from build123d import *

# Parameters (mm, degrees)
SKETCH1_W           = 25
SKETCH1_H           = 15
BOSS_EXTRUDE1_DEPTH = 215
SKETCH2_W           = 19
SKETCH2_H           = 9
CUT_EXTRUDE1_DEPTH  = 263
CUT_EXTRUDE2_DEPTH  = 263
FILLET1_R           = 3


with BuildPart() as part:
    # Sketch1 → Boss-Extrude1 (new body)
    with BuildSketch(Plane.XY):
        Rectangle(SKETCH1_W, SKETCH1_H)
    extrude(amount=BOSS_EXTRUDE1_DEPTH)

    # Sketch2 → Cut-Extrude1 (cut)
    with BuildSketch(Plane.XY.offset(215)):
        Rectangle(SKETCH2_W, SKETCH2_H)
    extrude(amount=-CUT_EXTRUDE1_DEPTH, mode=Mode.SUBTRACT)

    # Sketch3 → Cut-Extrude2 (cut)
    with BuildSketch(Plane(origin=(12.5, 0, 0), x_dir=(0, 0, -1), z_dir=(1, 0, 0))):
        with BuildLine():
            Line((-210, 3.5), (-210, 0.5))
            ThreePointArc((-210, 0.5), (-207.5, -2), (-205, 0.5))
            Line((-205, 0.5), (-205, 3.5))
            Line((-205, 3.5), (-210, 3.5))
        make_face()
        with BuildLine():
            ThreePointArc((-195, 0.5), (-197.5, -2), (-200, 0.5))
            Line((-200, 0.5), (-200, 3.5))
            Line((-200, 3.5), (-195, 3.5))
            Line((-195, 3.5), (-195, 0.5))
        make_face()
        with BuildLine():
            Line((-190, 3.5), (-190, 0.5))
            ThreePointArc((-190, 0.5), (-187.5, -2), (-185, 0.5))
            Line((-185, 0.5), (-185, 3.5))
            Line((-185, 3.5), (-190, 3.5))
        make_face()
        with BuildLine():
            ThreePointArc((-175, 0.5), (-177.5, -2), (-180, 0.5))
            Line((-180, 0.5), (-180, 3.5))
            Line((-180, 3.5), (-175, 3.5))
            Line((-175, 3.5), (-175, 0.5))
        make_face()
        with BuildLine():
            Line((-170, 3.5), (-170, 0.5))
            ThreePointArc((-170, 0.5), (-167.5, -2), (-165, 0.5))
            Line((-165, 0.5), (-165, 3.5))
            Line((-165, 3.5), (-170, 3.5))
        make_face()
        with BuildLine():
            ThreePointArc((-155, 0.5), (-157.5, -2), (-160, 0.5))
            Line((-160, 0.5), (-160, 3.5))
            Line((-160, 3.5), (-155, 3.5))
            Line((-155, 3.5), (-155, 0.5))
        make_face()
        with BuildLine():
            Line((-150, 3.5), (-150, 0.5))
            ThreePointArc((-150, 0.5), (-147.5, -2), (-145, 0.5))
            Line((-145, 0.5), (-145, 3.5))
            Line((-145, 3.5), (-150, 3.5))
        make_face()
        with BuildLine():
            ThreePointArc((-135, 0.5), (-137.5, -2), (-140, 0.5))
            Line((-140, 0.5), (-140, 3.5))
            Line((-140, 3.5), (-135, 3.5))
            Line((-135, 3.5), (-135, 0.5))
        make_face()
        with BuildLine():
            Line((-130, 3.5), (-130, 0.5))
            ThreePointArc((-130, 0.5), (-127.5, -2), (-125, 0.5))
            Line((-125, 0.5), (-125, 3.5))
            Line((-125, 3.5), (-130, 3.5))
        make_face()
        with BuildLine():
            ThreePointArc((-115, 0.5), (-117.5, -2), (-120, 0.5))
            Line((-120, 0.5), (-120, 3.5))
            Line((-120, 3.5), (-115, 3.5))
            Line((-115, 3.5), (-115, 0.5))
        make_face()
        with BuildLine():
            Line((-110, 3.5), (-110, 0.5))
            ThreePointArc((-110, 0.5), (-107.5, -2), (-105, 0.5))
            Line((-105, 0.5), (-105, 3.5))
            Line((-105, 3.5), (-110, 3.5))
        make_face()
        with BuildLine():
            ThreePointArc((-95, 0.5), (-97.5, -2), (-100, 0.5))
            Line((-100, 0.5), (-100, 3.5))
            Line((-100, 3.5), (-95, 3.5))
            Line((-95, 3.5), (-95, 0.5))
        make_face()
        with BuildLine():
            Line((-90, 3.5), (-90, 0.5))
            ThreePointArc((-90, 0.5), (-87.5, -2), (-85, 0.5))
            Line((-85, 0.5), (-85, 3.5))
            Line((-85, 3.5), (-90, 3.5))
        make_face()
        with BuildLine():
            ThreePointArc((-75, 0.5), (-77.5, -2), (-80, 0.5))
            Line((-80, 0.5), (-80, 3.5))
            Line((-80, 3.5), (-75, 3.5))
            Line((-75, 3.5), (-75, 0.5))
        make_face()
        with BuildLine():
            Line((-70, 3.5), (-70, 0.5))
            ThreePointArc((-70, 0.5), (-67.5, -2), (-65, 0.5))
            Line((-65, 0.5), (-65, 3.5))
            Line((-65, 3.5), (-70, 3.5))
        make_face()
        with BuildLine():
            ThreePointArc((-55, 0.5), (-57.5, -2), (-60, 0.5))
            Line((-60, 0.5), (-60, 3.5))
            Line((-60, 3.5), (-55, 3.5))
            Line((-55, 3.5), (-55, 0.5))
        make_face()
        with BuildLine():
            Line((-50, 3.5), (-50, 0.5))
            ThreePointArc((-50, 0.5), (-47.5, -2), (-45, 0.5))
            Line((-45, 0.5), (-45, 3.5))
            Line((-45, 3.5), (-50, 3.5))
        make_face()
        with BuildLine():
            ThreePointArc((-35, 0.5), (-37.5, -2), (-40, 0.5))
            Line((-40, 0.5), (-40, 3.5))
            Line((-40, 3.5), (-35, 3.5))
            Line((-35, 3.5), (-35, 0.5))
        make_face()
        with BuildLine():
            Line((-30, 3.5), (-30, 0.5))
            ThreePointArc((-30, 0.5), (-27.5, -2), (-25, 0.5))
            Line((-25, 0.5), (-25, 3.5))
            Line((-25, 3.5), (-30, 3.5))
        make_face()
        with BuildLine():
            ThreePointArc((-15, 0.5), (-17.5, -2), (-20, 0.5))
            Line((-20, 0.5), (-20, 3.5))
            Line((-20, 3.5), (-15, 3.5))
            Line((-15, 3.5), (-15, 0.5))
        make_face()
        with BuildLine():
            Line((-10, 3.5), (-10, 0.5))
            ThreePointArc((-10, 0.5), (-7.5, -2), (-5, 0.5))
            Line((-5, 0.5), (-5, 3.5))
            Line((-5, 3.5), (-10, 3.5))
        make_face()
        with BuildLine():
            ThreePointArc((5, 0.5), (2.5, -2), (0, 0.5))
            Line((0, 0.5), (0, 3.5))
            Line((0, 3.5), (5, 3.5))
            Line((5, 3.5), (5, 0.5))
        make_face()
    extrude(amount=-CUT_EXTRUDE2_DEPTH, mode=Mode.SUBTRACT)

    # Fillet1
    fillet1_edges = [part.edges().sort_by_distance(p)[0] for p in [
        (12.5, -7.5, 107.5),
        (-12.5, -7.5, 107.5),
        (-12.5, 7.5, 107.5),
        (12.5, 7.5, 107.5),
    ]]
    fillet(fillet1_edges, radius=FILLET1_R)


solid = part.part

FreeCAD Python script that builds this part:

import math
import FreeCAD as App
import Part
import Sketcher

V = App.Vector


def edges_at(feature, points):
    """Names of the edges that pass closest to the given points."""
    edges = feature.Shape.Edges
    near = lambda p: min(range(len(edges)), key=lambda i: edges[i].distToShape(Part.Vertex(*p))[0])
    return sorted({f"Edge{near(p) + 1}" for p in points})

doc = App.newDocument("Part")
body = doc.addObject("PartDesign::Body", "Body")

# Sketch on XY plane
sketch1 = body.newObject("Sketcher::SketchObject", "Sketch")
sketch1.AttachmentSupport = (doc.getObject("XY_Plane"), [""])
sketch1.MapMode = "FlatFace"
sketch1.addGeometry([
    Part.LineSegment(V(-12.5, 7.5, 0), V(-12.5, -7.5, 0)),
    Part.LineSegment(V(-12.5, -7.5, 0), V(12.5, -7.5, 0)),
    Part.LineSegment(V(12.5, -7.5, 0), V(12.5, 7.5, 0)),
    Part.LineSegment(V(12.5, 7.5, 0), V(-12.5, 7.5, 0)),
], False)
sketch1.addConstraint([
    Sketcher.Constraint("Coincident", 0, 2, 1, 1),
    Sketcher.Constraint("Coincident", 1, 2, 2, 1),
    Sketcher.Constraint("Coincident", 2, 2, 3, 1),
    Sketcher.Constraint("Coincident", 3, 2, 0, 1),
    Sketcher.Constraint("Vertical", 0),
    Sketcher.Constraint("Horizontal", 1),
    Sketcher.Constraint("Vertical", 2),
    Sketcher.Constraint("Horizontal", 3),
    Sketcher.Constraint("Symmetric", 0, 2, 2, 2, -1, 1),
    Sketcher.Constraint("DistanceX", 1, 1, 1, 2, 25.0),
    Sketcher.Constraint("DistanceY", 0, 2, 0, 1, 15.0),
])
pad1 = body.newObject("PartDesign::Pad", "Pad")
pad1.Profile = sketch1
pad1.Length = 215

# Sketch on XY plane
sketch2 = body.newObject("Sketcher::SketchObject", "Sketch001")
sketch2.AttachmentSupport = (doc.getObject("XY_Plane"), [""])
sketch2.MapMode = "FlatFace"
sketch2.AttachmentOffset = App.Placement(V(0, 0, 215), App.Rotation())
sketch2.addGeometry([
    Part.LineSegment(V(-9.5, 4.5, 0), V(-9.5, -4.5, 0)),
    Part.LineSegment(V(-9.5, -4.5, 0), V(9.5, -4.5, 0)),
    Part.LineSegment(V(9.5, -4.5, 0), V(9.5, 4.5, 0)),
    Part.LineSegment(V(9.5, 4.5, 0), V(-9.5, 4.5, 0)),
], False)
sketch2.addConstraint([
    Sketcher.Constraint("Coincident", 0, 2, 1, 1),
    Sketcher.Constraint("Coincident", 1, 2, 2, 1),
    Sketcher.Constraint("Coincident", 2, 2, 3, 1),
    Sketcher.Constraint("Coincident", 3, 2, 0, 1),
    Sketcher.Constraint("Vertical", 0),
    Sketcher.Constraint("Horizontal", 1),
    Sketcher.Constraint("Vertical", 2),
    Sketcher.Constraint("Horizontal", 3),
    Sketcher.Constraint("Symmetric", 0, 2, 2, 2, -1, 1),
    Sketcher.Constraint("DistanceX", 1, 1, 1, 2, 19.0),
    Sketcher.Constraint("DistanceY", 0, 2, 0, 1, 9.0),
])
pocket1 = body.newObject("PartDesign::Pocket", "Pocket")
pocket1.Profile = sketch2
pocket1.Length = 263

# Sketch on YZ plane
sketch3 = body.newObject("Sketcher::SketchObject", "Sketch002")
sketch3.AttachmentSupport = (doc.getObject("YZ_Plane"), [""])
sketch3.MapMode = "FlatFace"
sketch3.AttachmentOffset = App.Placement(V(0, 0, 12.5), App.Rotation())
sketch3.addGeometry([
    Part.LineSegment(V(3.5, 210, 0), V(0.5, 210, 0)),  # 0
    Part.ArcOfCircle(Part.Circle(V(0.5, 207.5, 0), V(0, 0, 1), 2.5), math.radians(90), math.radians(270)),  # 1
    Part.LineSegment(V(0.5, 205, 0), V(3.5, 205, 0)),  # 2
    Part.LineSegment(V(3.5, 205, 0), V(3.5, 210, 0)),  # 3
    Part.ArcOfCircle(Part.Circle(V(0.5, 197.5, 0), V(0, 0, 1), 2.5), math.radians(90), math.radians(270)),  # 4
    Part.LineSegment(V(0.5, 195, 0), V(3.5, 195, 0)),  # 5
    Part.LineSegment(V(3.5, 195, 0), V(3.5, 200, 0)),  # 6
    Part.LineSegment(V(3.5, 200, 0), V(0.5, 200, 0)),  # 7
    Part.LineSegment(V(3.5, 190, 0), V(0.5, 190, 0)),  # 8
    Part.ArcOfCircle(Part.Circle(V(0.5, 187.5, 0), V(0, 0, 1), 2.5), math.radians(90), math.radians(270)),  # 9
    Part.LineSegment(V(0.5, 185, 0), V(3.5, 185, 0)),  # 10
    Part.LineSegment(V(3.5, 185, 0), V(3.5, 190, 0)),  # 11
    Part.ArcOfCircle(Part.Circle(V(0.5, 177.5, 0), V(0, 0, 1), 2.5), math.radians(90), math.radians(270)),  # 12
    Part.LineSegment(V(0.5, 175, 0), V(3.5, 175, 0)),  # 13
    Part.LineSegment(V(3.5, 175, 0), V(3.5, 180, 0)),  # 14
    Part.LineSegment(V(3.5, 180, 0), V(0.5, 180, 0)),  # 15
    Part.LineSegment(V(3.5, 170, 0), V(0.5, 170, 0)),  # 16
    Part.ArcOfCircle(Part.Circle(V(0.5, 167.5, 0), V(0, 0, 1), 2.5), math.radians(90), math.radians(270)),  # 17
    Part.LineSegment(V(0.5, 165, 0), V(3.5, 165, 0)),  # 18
    Part.LineSegment(V(3.5, 165, 0), V(3.5, 170, 0)),  # 19
    Part.ArcOfCircle(Part.Circle(V(0.5, 157.5, 0), V(0, 0, 1), 2.5), math.radians(90), math.radians(270)),  # 20
    Part.LineSegment(V(0.5, 155, 0), V(3.5, 155, 0)),  # 21
    Part.LineSegment(V(3.5, 155, 0), V(3.5, 160, 0)),  # 22
    Part.LineSegment(V(3.5, 160, 0), V(0.5, 160, 0)),  # 23
    Part.LineSegment(V(3.5, 150, 0), V(0.5, 150, 0)),  # 24
    Part.ArcOfCircle(Part.Circle(V(0.5, 147.5, 0), V(0, 0, 1), 2.5), math.radians(90), math.radians(270)),  # 25
    Part.LineSegment(V(0.5, 145, 0), V(3.5, 145, 0)),  # 26
    Part.LineSegment(V(3.5, 145, 0), V(3.5, 150, 0)),  # 27
    Part.ArcOfCircle(Part.Circle(V(0.5, 137.5, 0), V(0, 0, 1), 2.5), math.radians(90), math.radians(270)),  # 28
    Part.LineSegment(V(0.5, 135, 0), V(3.5, 135, 0)),  # 29
    Part.LineSegment(V(3.5, 135, 0), V(3.5, 140, 0)),  # 30
    Part.LineSegment(V(3.5, 140, 0), V(0.5, 140, 0)),  # 31
    Part.LineSegment(V(3.5, 130, 0), V(0.5, 130, 0)),  # 32
    Part.ArcOfCircle(Part.Circle(V(0.5, 127.5, 0), V(0, 0, 1), 2.5), math.radians(90), math.radians(270)),  # 33
    Part.LineSegment(V(0.5, 125, 0), V(3.5, 125, 0)),  # 34
    Part.LineSegment(V(3.5, 125, 0), V(3.5, 130, 0)),  # 35
    Part.ArcOfCircle(Part.Circle(V(0.5, 117.5, 0), V(0, 0, 1), 2.5), math.radians(90), math.radians(270)),  # 36
    Part.LineSegment(V(0.5, 115, 0), V(3.5, 115, 0)),  # 37
    Part.LineSegment(V(3.5, 115, 0), V(3.5, 120, 0)),  # 38
    Part.LineSegment(V(3.5, 120, 0), V(0.5, 120, 0)),  # 39
    Part.LineSegment(V(3.5, 110, 0), V(0.5, 110, 0)),  # 40
    Part.ArcOfCircle(Part.Circle(V(0.5, 107.5, 0), V(0, 0, 1), 2.5), math.radians(90), math.radians(270)),  # 41
    Part.LineSegment(V(0.5, 105, 0), V(3.5, 105, 0)),  # 42
    Part.LineSegment(V(3.5, 105, 0), V(3.5, 110, 0)),  # 43
    Part.ArcOfCircle(Part.Circle(V(0.5, 97.5, 0), V(0, 0, 1), 2.5), math.radians(90), math.radians(270)),  # 44
    Part.LineSegment(V(0.5, 95, 0), V(3.5, 95, 0)),  # 45
    Part.LineSegment(V(3.5, 95, 0), V(3.5, 100, 0)),  # 46
    Part.LineSegment(V(3.5, 100, 0), V(0.5, 100, 0)),  # 47
    Part.LineSegment(V(3.5, 90, 0), V(0.5, 90, 0)),  # 48
    Part.ArcOfCircle(Part.Circle(V(0.5, 87.5, 0), V(0, 0, 1), 2.5), math.radians(90), math.radians(270)),  # 49
    Part.LineSegment(V(0.5, 85, 0), V(3.5, 85, 0)),  # 50
    Part.LineSegment(V(3.5, 85, 0), V(3.5, 90, 0)),  # 51
    Part.ArcOfCircle(Part.Circle(V(0.5, 77.5, 0), V(0, 0, 1), 2.5), math.radians(90), math.radians(270)),  # 52
    Part.LineSegment(V(0.5, 75, 0), V(3.5, 75, 0)),  # 53
    Part.LineSegment(V(3.5, 75, 0), V(3.5, 80, 0)),  # 54
    Part.LineSegment(V(3.5, 80, 0), V(0.5, 80, 0)),  # 55
    Part.LineSegment(V(3.5, 70, 0), V(0.5, 70, 0)),  # 56
    Part.ArcOfCircle(Part.Circle(V(0.5, 67.5, 0), V(0, 0, 1), 2.5), math.radians(90), math.radians(270)),  # 57
    Part.LineSegment(V(0.5, 65, 0), V(3.5, 65, 0)),  # 58
    Part.LineSegment(V(3.5, 65, 0), V(3.5, 70, 0)),  # 59
    Part.ArcOfCircle(Part.Circle(V(0.5, 57.5, 0), V(0, 0, 1), 2.5), math.radians(90), math.radians(270)),  # 60
    Part.LineSegment(V(0.5, 55, 0), V(3.5, 55, 0)),  # 61
    Part.LineSegment(V(3.5, 55, 0), V(3.5, 60, 0)),  # 62
    Part.LineSegment(V(3.5, 60, 0), V(0.5, 60, 0)),  # 63
    Part.LineSegment(V(3.5, 50, 0), V(0.5, 50, 0)),  # 64
    Part.ArcOfCircle(Part.Circle(V(0.5, 47.5, 0), V(0, 0, 1), 2.5), math.radians(90), math.radians(270)),  # 65
    Part.LineSegment(V(0.5, 45, 0), V(3.5, 45, 0)),  # 66
    Part.LineSegment(V(3.5, 45, 0), V(3.5, 50, 0)),  # 67
    Part.ArcOfCircle(Part.Circle(V(0.5, 37.5, 0), V(0, 0, 1), 2.5), math.radians(90), math.radians(270)),  # 68
    Part.LineSegment(V(0.5, 35, 0), V(3.5, 35, 0)),  # 69
    Part.LineSegment(V(3.5, 35, 0), V(3.5, 40, 0)),  # 70
    Part.LineSegment(V(3.5, 40, 0), V(0.5, 40, 0)),  # 71
    Part.LineSegment(V(3.5, 30, 0), V(0.5, 30, 0)),  # 72
    Part.ArcOfCircle(Part.Circle(V(0.5, 27.5, 0), V(0, 0, 1), 2.5), math.radians(90), math.radians(270)),  # 73
    Part.LineSegment(V(0.5, 25, 0), V(3.5, 25, 0)),  # 74
    Part.LineSegment(V(3.5, 25, 0), V(3.5, 30, 0)),  # 75
    Part.ArcOfCircle(Part.Circle(V(0.5, 17.5, 0), V(0, 0, 1), 2.5), math.radians(90), math.radians(270)),  # 76
    Part.LineSegment(V(0.5, 15, 0), V(3.5, 15, 0)),  # 77
    Part.LineSegment(V(3.5, 15, 0), V(3.5, 20, 0)),  # 78
    Part.LineSegment(V(3.5, 20, 0), V(0.5, 20, 0)),  # 79
    Part.LineSegment(V(3.5, 10, 0), V(0.5, 10, 0)),  # 80
    Part.ArcOfCircle(Part.Circle(V(0.5, 7.5, 0), V(0, 0, 1), 2.5), math.radians(90), math.radians(270)),  # 81
    Part.LineSegment(V(0.5, 5, 0), V(3.5, 5, 0)),  # 82
    Part.LineSegment(V(3.5, 5, 0), V(3.5, 10, 0)),  # 83
    Part.ArcOfCircle(Part.Circle(V(0.5, -2.5, 0), V(0, 0, 1), 2.5), math.radians(90), math.radians(270)),  # 84
    Part.LineSegment(V(0.5, -5, 0), V(3.5, -5, 0)),  # 85
    Part.LineSegment(V(3.5, -5, 0), V(3.5, 0, 0)),  # 86
    Part.LineSegment(V(3.5, 0, 0), V(0.5, 0, 0)),  # 87
], False)
sketch3.addConstraint([
    Sketcher.Constraint("Tangent", 0, 2, 1, 1),
    Sketcher.Constraint("Tangent", 1, 2, 2, 1),
    Sketcher.Constraint("Coincident", 2, 2, 3, 1),
    Sketcher.Constraint("Coincident", 3, 2, 0, 1),
    Sketcher.Constraint("Tangent", 4, 2, 5, 1),
    Sketcher.Constraint("Coincident", 5, 2, 6, 1),
    Sketcher.Constraint("Coincident", 6, 2, 7, 1),
    Sketcher.Constraint("Tangent", 7, 2, 4, 1),
    Sketcher.Constraint("Tangent", 8, 2, 9, 1),
    Sketcher.Constraint("Tangent", 9, 2, 10, 1),
    Sketcher.Constraint("Coincident", 10, 2, 11, 1),
    Sketcher.Constraint("Coincident", 11, 2, 8, 1),
    Sketcher.Constraint("Tangent", 12, 2, 13, 1),
    Sketcher.Constraint("Coincident", 13, 2, 14, 1),
    Sketcher.Constraint("Coincident", 14, 2, 15, 1),
    Sketcher.Constraint("Tangent", 15, 2, 12, 1),
    Sketcher.Constraint("Tangent", 16, 2, 17, 1),
    Sketcher.Constraint("Tangent", 17, 2, 18, 1),
    Sketcher.Constraint("Coincident", 18, 2, 19, 1),
    Sketcher.Constraint("Coincident", 19, 2, 16, 1),
    Sketcher.Constraint("Tangent", 20, 2, 21, 1),
    Sketcher.Constraint("Coincident", 21, 2, 22, 1),
    Sketcher.Constraint("Coincident", 22, 2, 23, 1),
    Sketcher.Constraint("Tangent", 23, 2, 20, 1),
    Sketcher.Constraint("Tangent", 24, 2, 25, 1),
    Sketcher.Constraint("Tangent", 25, 2, 26, 1),
    Sketcher.Constraint("Coincident", 26, 2, 27, 1),
    Sketcher.Constraint("Coincident", 27, 2, 24, 1),
    Sketcher.Constraint("Tangent", 28, 2, 29, 1),
    Sketcher.Constraint("Coincident", 29, 2, 30, 1),
    Sketcher.Constraint("Coincident", 30, 2, 31, 1),
    Sketcher.Constraint("Tangent", 31, 2, 28, 1),
    Sketcher.Constraint("Tangent", 32, 2, 33, 1),
    Sketcher.Constraint("Tangent", 33, 2, 34, 1),
    Sketcher.Constraint("Coincident", 34, 2, 35, 1),
    Sketcher.Constraint("Coincident", 35, 2, 32, 1),
    Sketcher.Constraint("Tangent", 36, 2, 37, 1),
    Sketcher.Constraint("Coincident", 37, 2, 38, 1),
    Sketcher.Constraint("Coincident", 38, 2, 39, 1),
    Sketcher.Constraint("Tangent", 39, 2, 36, 1),
    Sketcher.Constraint("Tangent", 40, 2, 41, 1),
    Sketcher.Constraint("Tangent", 41, 2, 42, 1),
    Sketcher.Constraint("Coincident", 42, 2, 43, 1),
    Sketcher.Constraint("Coincident", 43, 2, 40, 1),
    Sketcher.Constraint("Tangent", 44, 2, 45, 1),
    Sketcher.Constraint("Coincident", 45, 2, 46, 1),
    Sketcher.Constraint("Coincident", 46, 2, 47, 1),
    Sketcher.Constraint("Tangent", 47, 2, 44, 1),
    Sketcher.Constraint("Tangent", 48, 2, 49, 1),
    Sketcher.Constraint("Tangent", 49, 2, 50, 1),
    Sketcher.Constraint("Coincident", 50, 2, 51, 1),
    Sketcher.Constraint("Coincident", 51, 2, 48, 1),
    Sketcher.Constraint("Tangent", 52, 2, 53, 1),
    Sketcher.Constraint("Coincident", 53, 2, 54, 1),
    Sketcher.Constraint("Coincident", 54, 2, 55, 1),
    Sketcher.Constraint("Tangent", 55, 2, 52, 1),
    Sketcher.Constraint("Tangent", 56, 2, 57, 1),
    Sketcher.Constraint("Tangent", 57, 2, 58, 1),
    Sketcher.Constraint("Coincident", 58, 2, 59, 1),
    Sketcher.Constraint("Coincident", 59, 2, 56, 1),
    Sketcher.Constraint("Tangent", 60, 2, 61, 1),
    Sketcher.Constraint("Coincident", 61, 2, 62, 1),
    Sketcher.Constraint("Coincident", 62, 2, 63, 1),
    Sketcher.Constraint("Tangent", 63, 2, 60, 1),
    Sketcher.Constraint("Tangent", 64, 2, 65, 1),
    Sketcher.Constraint("Tangent", 65, 2, 66, 1),
    Sketcher.Constraint("Coincident", 66, 2, 67, 1),
    Sketcher.Constraint("Coincident", 67, 2, 64, 1),
    Sketcher.Constraint("Tangent", 68, 2, 69, 1),
    Sketcher.Constraint("Coincident", 69, 2, 70, 1),
    Sketcher.Constraint("Coincident", 70, 2, 71, 1),
    Sketcher.Constraint("Tangent", 71, 2, 68, 1),
    Sketcher.Constraint("Tangent", 72, 2, 73, 1),
    Sketcher.Constraint("Tangent", 73, 2, 74, 1),
    Sketcher.Constraint("Coincident", 74, 2, 75, 1),
    Sketcher.Constraint("Coincident", 75, 2, 72, 1),
    Sketcher.Constraint("Tangent", 76, 2, 77, 1),
    Sketcher.Constraint("Coincident", 77, 2, 78, 1),
    Sketcher.Constraint("Coincident", 78, 2, 79, 1),
    Sketcher.Constraint("Tangent", 79, 2, 76, 1),
    Sketcher.Constraint("Tangent", 80, 2, 81, 1),
    Sketcher.Constraint("Tangent", 81, 2, 82, 1),
    Sketcher.Constraint("Coincident", 82, 2, 83, 1),
    Sketcher.Constraint("Coincident", 83, 2, 80, 1),
    Sketcher.Constraint("Tangent", 84, 2, 85, 1),
    Sketcher.Constraint("Coincident", 85, 2, 86, 1),
    Sketcher.Constraint("Coincident", 86, 2, 87, 1),
    Sketcher.Constraint("Tangent", 87, 2, 84, 1),
    Sketcher.Constraint("Horizontal", 0),
    Sketcher.Constraint("Horizontal", 2),
    Sketcher.Constraint("Vertical", 3),
    Sketcher.Constraint("Horizontal", 5),
    Sketcher.Constraint("Vertical", 6),
    Sketcher.Constraint("Horizontal", 7),
    Sketcher.Constraint("Horizontal", 8),
    Sketcher.Constraint("Horizontal", 10),
    Sketcher.Constraint("Vertical", 11),
    Sketcher.Constraint("Horizontal", 13),
    Sketcher.Constraint("Vertical", 14),
    Sketcher.Constraint("Horizontal", 15),
    Sketcher.Constraint("Horizontal", 16),
    Sketcher.Constraint("Horizontal", 18),
    Sketcher.Constraint("Vertical", 19),
    Sketcher.Constraint("Horizontal", 21),
    Sketcher.Constraint("Vertical", 22),
    Sketcher.Constraint("Horizontal", 23),
    Sketcher.Constraint("Horizontal", 24),
    Sketcher.Constraint("Horizontal", 26),
    Sketcher.Constraint("Vertical", 27),
    Sketcher.Constraint("Horizontal", 29),
    Sketcher.Constraint("Vertical", 30),
    Sketcher.Constraint("Horizontal", 31),
    Sketcher.Constraint("Horizontal", 32),
    Sketcher.Constraint("Horizontal", 34),
    Sketcher.Constraint("Vertical", 35),
    Sketcher.Constraint("Horizontal", 37),
    Sketcher.Constraint("Vertical", 38),
    Sketcher.Constraint("Horizontal", 39),
    Sketcher.Constraint("Horizontal", 40),
    Sketcher.Constraint("Horizontal", 42),
    Sketcher.Constraint("Vertical", 43),
    Sketcher.Constraint("Horizontal", 45),
    Sketcher.Constraint("Vertical", 46),
    Sketcher.Constraint("Horizontal", 47),
    Sketcher.Constraint("Horizontal", 48),
    Sketcher.Constraint("Horizontal", 50),
    Sketcher.Constraint("Vertical", 51),
    Sketcher.Constraint("Horizontal", 53),
    Sketcher.Constraint("Vertical", 54),
    Sketcher.Constraint("Horizontal", 55),
    Sketcher.Constraint("Horizontal", 56),
    Sketcher.Constraint("Horizontal", 58),
    Sketcher.Constraint("Vertical", 59),
    Sketcher.Constraint("Horizontal", 61),
    Sketcher.Constraint("Vertical", 62),
    Sketcher.Constraint("Horizontal", 63),
    Sketcher.Constraint("Horizontal", 64),
    Sketcher.Constraint("Horizontal", 66),
    Sketcher.Constraint("Vertical", 67),
    Sketcher.Constraint("Horizontal", 69),
    Sketcher.Constraint("Vertical", 70),
    Sketcher.Constraint("Horizontal", 71),
    Sketcher.Constraint("Horizontal", 72),
    Sketcher.Constraint("Horizontal", 74),
    Sketcher.Constraint("Vertical", 75),
    Sketcher.Constraint("Horizontal", 77),
    Sketcher.Constraint("Vertical", 78),
    Sketcher.Constraint("Horizontal", 79),
    Sketcher.Constraint("Horizontal", 80),
    Sketcher.Constraint("Horizontal", 82),
    Sketcher.Constraint("Vertical", 83),
    Sketcher.Constraint("Horizontal", 85),
    Sketcher.Constraint("Vertical", 86),
    Sketcher.Constraint("Horizontal", 87),
    Sketcher.Constraint("Equal", 1, 4),
    Sketcher.Constraint("Equal", 4, 9),
    Sketcher.Constraint("Equal", 9, 12),
    Sketcher.Constraint("Equal", 12, 17),
    Sketcher.Constraint("Equal", 17, 20),
    Sketcher.Constraint("Equal", 20, 25),
    Sketcher.Constraint("Equal", 25, 28),
    Sketcher.Constraint("Equal", 28, 33),
    Sketcher.Constraint("Equal", 33, 36),
    Sketcher.Constraint("Equal", 36, 41),
    Sketcher.Constraint("Equal", 41, 44),
    Sketcher.Constraint("Equal", 44, 49),
    Sketcher.Constraint("Equal", 49, 52),
    Sketcher.Constraint("Equal", 52, 57),
    Sketcher.Constraint("Equal", 57, 60),
    Sketcher.Constraint("Equal", 60, 65),
    Sketcher.Constraint("Equal", 65, 68),
    Sketcher.Constraint("Equal", 68, 73),
    Sketcher.Constraint("Equal", 73, 76),
    Sketcher.Constraint("Equal", 76, 81),
    Sketcher.Constraint("Equal", 81, 84),
    Sketcher.Constraint("Symmetric", 81, 2, 84, 2, -1),
    Sketcher.Constraint("PointOnObject", 86, 2, -1),
    Sketcher.Constraint("Vertical", 1, 3, 4, 3),
    Sketcher.Constraint("Vertical", 4, 3, 9, 3),
    Sketcher.Constraint("Vertical", 9, 3, 12, 3),
    Sketcher.Constraint("Vertical", 12, 3, 17, 3),
    Sketcher.Constraint("Vertical", 17, 3, 20, 3),
    Sketcher.Constraint("Vertical", 20, 3, 25, 3),
    Sketcher.Constraint("Vertical", 25, 3, 28, 3),
    Sketcher.Constraint("Vertical", 28, 3, 33, 3),
    Sketcher.Constraint("Vertical", 33, 3, 36, 3),
    Sketcher.Constraint("Vertical", 36, 3, 41, 3),
    Sketcher.Constraint("Vertical", 41, 3, 44, 3),
    Sketcher.Constraint("Vertical", 44, 3, 49, 3),
    Sketcher.Constraint("Vertical", 49, 3, 52, 3),
    Sketcher.Constraint("Vertical", 52, 3, 57, 3),
    Sketcher.Constraint("Vertical", 57, 3, 60, 3),
    Sketcher.Constraint("Vertical", 60, 3, 65, 3),
    Sketcher.Constraint("Vertical", 65, 3, 68, 3),
    Sketcher.Constraint("Vertical", 68, 3, 73, 3),
    Sketcher.Constraint("Vertical", 73, 3, 76, 3),
    Sketcher.Constraint("Vertical", 76, 3, 81, 3),
    Sketcher.Constraint("Vertical", 3, 2, 5, 2),
    Sketcher.Constraint("Vertical", 6, 2, 10, 2),
    Sketcher.Constraint("Vertical", 11, 2, 13, 2),
    Sketcher.Constraint("Vertical", 14, 2, 18, 2),
    Sketcher.Constraint("Vertical", 19, 2, 21, 2),
    Sketcher.Constraint("Vertical", 22, 2, 26, 2),
    Sketcher.Constraint("Vertical", 27, 2, 29, 2),
    Sketcher.Constraint("Vertical", 30, 2, 34, 2),
    Sketcher.Constraint("Vertical", 35, 2, 37, 2),
    Sketcher.Constraint("Vertical", 38, 2, 42, 2),
    Sketcher.Constraint("Vertical", 43, 2, 45, 2),
    Sketcher.Constraint("Vertical", 46, 2, 50, 2),
    Sketcher.Constraint("Vertical", 51, 2, 53, 2),
    Sketcher.Constraint("Vertical", 54, 2, 58, 2),
    Sketcher.Constraint("Vertical", 59, 2, 61, 2),
    Sketcher.Constraint("Vertical", 62, 2, 66, 2),
    Sketcher.Constraint("Vertical", 67, 2, 69, 2),
    Sketcher.Constraint("Vertical", 70, 2, 74, 2),
    Sketcher.Constraint("Vertical", 75, 2, 77, 2),
    Sketcher.Constraint("Vertical", 78, 2, 82, 2),
    Sketcher.Constraint("Vertical", 83, 2, 85, 2),
    Sketcher.Constraint("Radius", 1, 2.5),
    Sketcher.Constraint("DistanceX", 0, 2, 0, 1, 3.0),
    Sketcher.Constraint("DistanceY", -1, 1, 0, 2, 210.0),
    Sketcher.Constraint("DistanceY", -1, 1, 4, 2, 195.0),
    Sketcher.Constraint("DistanceY", -1, 1, 8, 2, 190.0),
    Sketcher.Constraint("DistanceY", -1, 1, 12, 2, 175.0),
    Sketcher.Constraint("DistanceY", -1, 1, 16, 2, 170.0),
    Sketcher.Constraint("DistanceY", -1, 1, 20, 2, 155.0),
    Sketcher.Constraint("DistanceY", -1, 1, 24, 2, 150.0),
    Sketcher.Constraint("DistanceY", -1, 1, 28, 2, 135.0),
    Sketcher.Constraint("DistanceY", -1, 1, 32, 2, 130.0),
    Sketcher.Constraint("DistanceY", -1, 1, 36, 2, 115.0),
    Sketcher.Constraint("DistanceY", -1, 1, 40, 2, 110.0),
    Sketcher.Constraint("DistanceY", -1, 1, 44, 2, 95.0),
    Sketcher.Constraint("DistanceY", -1, 1, 48, 2, 90.0),
    Sketcher.Constraint("DistanceY", -1, 1, 52, 2, 75.0),
    Sketcher.Constraint("DistanceY", -1, 1, 56, 2, 70.0),
    Sketcher.Constraint("DistanceY", -1, 1, 60, 2, 55.0),
    Sketcher.Constraint("DistanceY", -1, 1, 64, 2, 50.0),
    Sketcher.Constraint("DistanceY", -1, 1, 68, 2, 35.0),
    Sketcher.Constraint("DistanceY", -1, 1, 72, 2, 30.0),
    Sketcher.Constraint("DistanceY", -1, 1, 76, 2, 15.0),
    Sketcher.Constraint("DistanceX", -1, 1, 1, 3, 0.5),
])
pocket2 = body.newObject("PartDesign::Pocket", "Pocket001")
pocket2.Profile = sketch3
pocket2.Length = 263
doc.recompute()

fillet = body.newObject("PartDesign::Fillet", "Fillet")
fillet.Base = (pocket2, edges_at(pocket2, [
    (12.5, -7.5, 107.5),
    (-12.5, -7.5, 107.5),
    (-12.5, 7.5, 107.5),
    (12.5, 7.5, 107.5),
]))
fillet.Radius = 3

doc.recompute()
